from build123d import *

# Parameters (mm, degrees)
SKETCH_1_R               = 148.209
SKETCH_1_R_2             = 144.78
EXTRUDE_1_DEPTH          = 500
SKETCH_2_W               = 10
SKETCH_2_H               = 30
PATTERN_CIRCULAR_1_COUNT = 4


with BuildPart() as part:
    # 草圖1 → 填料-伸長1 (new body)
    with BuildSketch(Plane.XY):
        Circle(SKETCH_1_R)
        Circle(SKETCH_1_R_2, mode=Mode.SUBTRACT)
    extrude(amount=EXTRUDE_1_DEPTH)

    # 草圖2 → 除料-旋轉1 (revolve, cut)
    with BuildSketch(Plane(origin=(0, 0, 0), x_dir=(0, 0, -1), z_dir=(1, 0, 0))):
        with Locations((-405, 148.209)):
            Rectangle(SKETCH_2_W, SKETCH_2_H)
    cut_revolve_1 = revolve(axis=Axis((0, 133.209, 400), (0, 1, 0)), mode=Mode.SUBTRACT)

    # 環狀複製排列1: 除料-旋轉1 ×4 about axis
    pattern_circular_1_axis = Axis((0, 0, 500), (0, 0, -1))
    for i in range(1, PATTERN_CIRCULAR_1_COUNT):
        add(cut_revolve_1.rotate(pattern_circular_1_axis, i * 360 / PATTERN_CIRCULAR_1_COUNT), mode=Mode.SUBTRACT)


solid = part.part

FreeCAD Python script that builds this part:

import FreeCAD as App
import Part
import Sketcher
from FreeCAD import Vector
Q = App.Units.Quantity

doc = App.newDocument("Part")
body = doc.addObject("PartDesign::Body", "Body")

# Sketch on XY plane
sketch1 = body.newObject("Sketcher::SketchObject", "Sketch")
sketch1.AttachmentSupport = (doc.getObject("XY_Plane"), [""])
sketch1.MapMode = "FlatFace"
sketch1.addGeometry([
    Part.Circle(Vector(0, 0, 0), Vector(0, 0, 1), 148),
    Part.Circle(Vector(0, 0, 0), Vector(0, 0, 1), 145),
], False)
sketch1.addConstraint([
    Sketcher.Constraint("Coincident", 0, 3, -1, 1),
    Sketcher.Constraint("Coincident", 1, 3, -1, 1),
    Sketcher.Constraint("Diameter", 1, Q("289.56 mm")),
    Sketcher.Constraint("Diameter", 0, Q("296.418 mm")),
])
pad1 = body.newObject("PartDesign::Pad", "Pad")
pad1.Profile = sketch1
pad1.Length = 500

# Sketch on YZ plane
sketch2 = body.newObject("Sketcher::SketchObject", "Sketch001")
sketch2.AttachmentSupport = (doc.getObject("YZ_Plane"), [""])
sketch2.MapMode = "FlatFace"
sketch2.addGeometry([
    Part.LineSegment(Vector(163, 410, 0), Vector(133, 410, 0)),
    Part.LineSegment(Vector(133, 410, 0), Vector(133, 400, 0)),
    Part.LineSegment(Vector(133, 400, 0), Vector(163, 400, 0)),
    Part.LineSegment(Vector(163, 400, 0), Vector(163, 410, 0)),
], False)
sketch2.addGeometry(Part.LineSegment(Vector(133, 400, 0), Vector(163, 400, 0)), True)  # axis
sketch2.addConstraint([
    Sketcher.Constraint("Coincident", 0, 2, 1, 1),
    Sketcher.Constraint("Coincident", 1, 2, 2, 1),
    Sketcher.Constraint("Coincident", 2, 2, 3, 1),
    Sketcher.Constraint("Coincident", 3, 2, 0, 1),
    Sketcher.Constraint("Horizontal", 0),
    Sketcher.Constraint("Vertical", 1),
    Sketcher.Constraint("Horizontal", 2),
    Sketcher.Constraint("Vertical", 3),
    Sketcher.Constraint("Horizontal", 4),
    Sketcher.Constraint("Coincident", 4, 1, 1, 2),
    Sketcher.Constraint("Vertical", 3, 2, 4, 2),
    Sketcher.Constraint("DistanceX", 0, 2, 0, 1, Q("30 mm")),
    Sketcher.Constraint("DistanceY", 1, 2, 1, 1, Q("10 mm")),
    Sketcher.Constraint("DistanceY", -1, 1, 0, 2, Q("410 mm")),
    Sketcher.Constraint("DistanceX", -1, 1, 0, 2, Q("133.209 mm")),
])
groove = body.newObject("PartDesign::Groove", "Groove")
groove.Profile = sketch2
groove.ReferenceAxis = (sketch2, ["Axis0"])
groove.Angle = 360
doc.recompute()

polarpattern = body.newObject("PartDesign::PolarPattern", "PolarPattern")
polarpattern.Originals = [groove]
polarpattern.Axis = (doc.getObject("Z_Axis"), [""])
polarpattern.Angle = 360
polarpattern.Occurrences = 4
body.Tip = polarpattern

doc.recompute()
